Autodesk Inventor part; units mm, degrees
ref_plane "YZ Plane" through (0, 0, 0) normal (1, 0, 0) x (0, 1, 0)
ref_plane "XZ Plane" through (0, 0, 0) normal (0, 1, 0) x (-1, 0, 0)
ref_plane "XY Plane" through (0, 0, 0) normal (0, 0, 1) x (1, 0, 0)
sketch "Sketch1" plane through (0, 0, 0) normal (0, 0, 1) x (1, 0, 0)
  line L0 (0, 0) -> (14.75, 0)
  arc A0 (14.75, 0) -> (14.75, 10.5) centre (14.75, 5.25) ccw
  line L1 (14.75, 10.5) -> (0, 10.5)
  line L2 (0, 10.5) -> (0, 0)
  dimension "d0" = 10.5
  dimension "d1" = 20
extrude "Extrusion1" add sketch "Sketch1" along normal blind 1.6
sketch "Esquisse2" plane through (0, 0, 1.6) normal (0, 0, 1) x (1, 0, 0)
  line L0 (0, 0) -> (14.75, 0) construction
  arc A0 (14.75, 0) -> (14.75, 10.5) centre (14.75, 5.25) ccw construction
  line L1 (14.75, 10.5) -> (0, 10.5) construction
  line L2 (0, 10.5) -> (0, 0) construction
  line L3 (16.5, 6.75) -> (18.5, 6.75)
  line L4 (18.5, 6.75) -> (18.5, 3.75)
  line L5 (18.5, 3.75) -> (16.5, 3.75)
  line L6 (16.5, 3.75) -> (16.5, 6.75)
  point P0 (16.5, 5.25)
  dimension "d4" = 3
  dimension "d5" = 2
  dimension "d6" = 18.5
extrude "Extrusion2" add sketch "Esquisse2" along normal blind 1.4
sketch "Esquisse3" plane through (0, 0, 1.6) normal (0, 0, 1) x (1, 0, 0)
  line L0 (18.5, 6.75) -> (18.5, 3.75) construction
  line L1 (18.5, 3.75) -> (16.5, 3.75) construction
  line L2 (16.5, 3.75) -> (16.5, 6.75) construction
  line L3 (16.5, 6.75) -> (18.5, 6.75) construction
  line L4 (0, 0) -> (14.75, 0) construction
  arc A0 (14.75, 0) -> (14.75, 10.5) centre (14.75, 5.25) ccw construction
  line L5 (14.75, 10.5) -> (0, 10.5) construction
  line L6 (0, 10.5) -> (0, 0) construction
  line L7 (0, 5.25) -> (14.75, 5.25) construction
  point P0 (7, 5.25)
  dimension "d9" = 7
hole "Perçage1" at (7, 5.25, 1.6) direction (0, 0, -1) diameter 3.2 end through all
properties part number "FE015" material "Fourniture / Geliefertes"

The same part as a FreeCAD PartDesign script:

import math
import FreeCAD as App
import Part
import Sketcher
from FreeCAD import Vector
Q = App.Units.Quantity


def add_polygon(sketch, points):
    """Adds a closed chain of lines whose ends are joined by coincident constraints."""
    first, n = sketch.GeometryCount, len(points)
    for a, b in zip(points, points[1:] + points[:1]):
        sketch.addGeometry(Part.LineSegment(App.Vector(*a, 0), App.Vector(*b, 0)), False)
    for i in range(n):
        sketch.addConstraint(Sketcher.Constraint("Coincident", first + i, 2, first + (i + 1) % n, 1))

doc = App.newDocument("Part")
body = doc.addObject("PartDesign::Body", "Body")

# Sketch on XY plane
sketch1 = body.newObject("Sketcher::SketchObject", "Sketch")
sketch1.AttachmentSupport = (doc.getObject("XY_Plane"), [""])
sketch1.MapMode = "FlatFace"
sketch1.addGeometry([
    Part.LineSegment(Vector(0, 10.5, 0), Vector(0, 0, 0)),
    Part.LineSegment(Vector(0, 0, 0), Vector(14.75, 0, 0)),
    Part.ArcOfCircle(Part.Circle(Vector(14.75, 5.25, 0), Vector(0, 0, 1), 5.25), math.radians(-90), math.radians(90)),
    Part.LineSegment(Vector(14.75, 10.5, 0), Vector(0, 10.5, 0)),
], False)
sketch1.addConstraint([
    Sketcher.Constraint("Coincident", 0, 2, 1, 1),
    Sketcher.Constraint("Tangent", 1, 2, 2, 1),
    Sketcher.Constraint("Tangent", 2, 2, 3, 1),
    Sketcher.Constraint("Coincident", 3, 2, 0, 1),
    Sketcher.Constraint("Vertical", 0),
    Sketcher.Constraint("Horizontal", 1),
    Sketcher.Constraint("Horizontal", 3),
    Sketcher.Constraint("Coincident", 0, 2, -1, 1),
    Sketcher.Constraint("Radius", 2, Q("5.25 mm")),
    Sketcher.Constraint("DistanceX", 1, 1, 1, 2, Q("14.75 mm")),
])
pad1 = body.newObject("PartDesign::Pad", "Pad")
pad1.Profile = sketch1
pad1.Length = 1.6

# Sketch on XY plane
sketch2 = body.newObject("Sketcher::SketchObject", "Sketch001")
sketch2.AttachmentSupport = (doc.getObject("XY_Plane"), [""])
sketch2.MapMode = "FlatFace"
sketch2.AttachmentOffset = App.Placement(Vector(0, 0, 1.6), App.Rotation())
add_polygon(sketch2, [(18.5, 6.75), (16.5, 6.75), (16.5, 3.75), (18.5, 3.75)])  # lines 0-3
sketch2.addConstraint([
    Sketcher.Constraint("Horizontal", 0),
    Sketcher.Constraint("Vertical", 1),
    Sketcher.Constraint("Horizontal", 2),
    Sketcher.Constraint("Vertical", 3),
    Sketcher.Constraint("DistanceX", 0, 2, 0, 1, Q("2 mm")),
    Sketcher.Constraint("DistanceY", 1, 2, 1, 1, Q("3 mm")),
    Sketcher.Constraint("DistanceX", -1, 1, 2, 2, Q("18.5 mm")),
    Sketcher.Constraint("DistanceY", -1, 1, 0, 2, Q("6.75 mm")),
])
pad2 = body.newObject("PartDesign::Pad", "Pad001")
pad2.Profile = sketch2
pad2.Length = 1.4

# Sketch on XY plane
sketch3 = body.newObject("Sketcher::SketchObject", "Sketch002")
sketch3.AttachmentSupport = (doc.getObject("XY_Plane"), [""])
sketch3.MapMode = "FlatFace"
sketch3.AttachmentOffset = App.Placement(Vector(0, 0, 1.6), App.Rotation())
sketch3.addGeometry(Part.Circle(Vector(7, 5.25, 0), Vector(0, 0, 1), 1.6), False)
sketch3.addConstraint([
    Sketcher.Constraint("Diameter", 0, Q("3.2 mm")),
    Sketcher.Constraint("DistanceX", -1, 1, 0, 3, Q("7 mm")),
    Sketcher.Constraint("DistanceY", -1, 1, 0, 3, Q("5.25 mm")),
])
doc.recompute()
hole = body.newObject("PartDesign::Hole", "Hole")
hole.Profile = sketch3
hole.ThreadType = "None"
hole.Diameter = 3.2
hole.DepthType = "ThroughAll"

doc.recompute()
